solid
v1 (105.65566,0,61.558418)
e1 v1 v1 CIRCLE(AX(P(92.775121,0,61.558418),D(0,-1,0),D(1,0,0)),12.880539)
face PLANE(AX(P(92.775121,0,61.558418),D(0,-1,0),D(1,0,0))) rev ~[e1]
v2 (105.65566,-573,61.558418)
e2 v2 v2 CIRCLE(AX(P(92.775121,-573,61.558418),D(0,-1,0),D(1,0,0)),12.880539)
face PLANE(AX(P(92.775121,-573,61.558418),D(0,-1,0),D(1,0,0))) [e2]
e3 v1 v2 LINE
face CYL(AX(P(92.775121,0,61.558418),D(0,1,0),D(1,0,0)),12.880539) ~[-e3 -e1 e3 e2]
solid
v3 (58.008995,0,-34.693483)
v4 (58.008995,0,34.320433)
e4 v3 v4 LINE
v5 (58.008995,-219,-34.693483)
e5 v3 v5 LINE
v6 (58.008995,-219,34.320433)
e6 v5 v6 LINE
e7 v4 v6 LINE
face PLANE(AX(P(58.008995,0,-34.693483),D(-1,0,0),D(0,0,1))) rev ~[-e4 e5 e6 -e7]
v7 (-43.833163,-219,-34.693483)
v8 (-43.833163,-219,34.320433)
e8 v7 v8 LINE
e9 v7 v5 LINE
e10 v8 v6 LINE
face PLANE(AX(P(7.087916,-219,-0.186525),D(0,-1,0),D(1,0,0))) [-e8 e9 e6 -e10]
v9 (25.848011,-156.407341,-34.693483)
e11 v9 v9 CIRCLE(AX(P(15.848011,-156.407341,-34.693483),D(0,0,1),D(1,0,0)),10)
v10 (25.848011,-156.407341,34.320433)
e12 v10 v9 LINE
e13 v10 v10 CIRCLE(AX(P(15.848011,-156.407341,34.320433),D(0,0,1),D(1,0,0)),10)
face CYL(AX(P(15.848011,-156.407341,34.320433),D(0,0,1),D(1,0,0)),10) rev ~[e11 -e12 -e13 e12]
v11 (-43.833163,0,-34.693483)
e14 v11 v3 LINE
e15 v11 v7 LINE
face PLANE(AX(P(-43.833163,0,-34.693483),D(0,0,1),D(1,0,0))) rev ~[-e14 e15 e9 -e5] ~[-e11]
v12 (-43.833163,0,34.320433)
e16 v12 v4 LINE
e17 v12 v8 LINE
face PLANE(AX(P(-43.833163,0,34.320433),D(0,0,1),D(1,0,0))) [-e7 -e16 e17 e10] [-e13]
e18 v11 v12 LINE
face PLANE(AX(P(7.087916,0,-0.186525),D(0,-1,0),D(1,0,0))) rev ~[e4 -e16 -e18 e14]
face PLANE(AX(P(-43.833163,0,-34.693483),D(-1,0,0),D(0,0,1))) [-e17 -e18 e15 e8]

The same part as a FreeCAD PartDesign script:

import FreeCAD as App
import Part
import Sketcher
from FreeCAD import Vector

doc = App.newDocument("Part")
params = doc.addObject("Spreadsheet::Sheet", "Params")
for row, (alias, value) in enumerate([
    ("pad1_length", "219 mm"),
    ("sketch2_diameter", "20 mm"),
    ("pad2_length", "573 mm"),
], start=1):
    params.set(f"A{row}", alias)
    params.set(f"B{row}", "=" + value)
    params.setAlias(f"B{row}", alias)

body = doc.addObject("PartDesign::Body", "Body")

sketch1 = doc.addObject("Sketcher::SketchObject", "Sketch")
body.addObject(sketch1)
sketch1.AttachmentSupport = (doc.XZ_Plane, [""])
sketch1.MapMode = "FlatFace"
sketch1.addGeometry(Part.LineSegment(Vector(-43.833163, 34.320433, 0), Vector(-43.833163, -34.693483, 0)), False)
sketch1.addGeometry(Part.LineSegment(Vector(-43.833163, -34.693483, 0), Vector(58.008995, -34.693483, 0)), False)
sketch1.addGeometry(Part.LineSegment(Vector(58.008995, -34.693483, 0), Vector(58.008995, 34.320433, 0)), False)
sketch1.addGeometry(Part.LineSegment(Vector(58.008995, 34.320433, 0), Vector(-43.833163, 34.320433, 0)), False)
sketch1.addConstraint(Sketcher.Constraint("Coincident", 0, 2, 1, 1))
sketch1.addConstraint(Sketcher.Constraint("Coincident", 1, 2, 2, 1))
sketch1.addConstraint(Sketcher.Constraint("Coincident", 2, 2, 3, 1))
sketch1.addConstraint(Sketcher.Constraint("Coincident", 3, 2, 0, 1))
sketch1.addConstraint(Sketcher.Constraint("Vertical", 0))
sketch1.addConstraint(Sketcher.Constraint("Horizontal", 1))
sketch1.addConstraint(Sketcher.Constraint("Vertical", 2))
sketch1.addConstraint(Sketcher.Constraint("Horizontal", 3))
sketch1.addConstraint(Sketcher.Constraint("DistanceX", 1, 1, 1, 2, 101.842158))
sketch1.addConstraint(Sketcher.Constraint("DistanceY", 0, 2, 0, 1, 69.013916))
sketch1.addConstraint(Sketcher.Constraint("DistanceX", 0, 2, -1, 1, 43.833163))
sketch1.addConstraint(Sketcher.Constraint("DistanceY", 0, 2, -1, 1, 34.693483))
pad1 = doc.addObject("PartDesign::Pad", "Pad")
body.addObject(pad1)
pad1.Profile = sketch1
pad1.setExpression("Length", "Params.pad1_length")

sketch2 = doc.addObject("Sketcher::SketchObject", "Sketch001")
body.addObject(sketch2)
sketch2.AttachmentSupport = (doc.XY_Plane, [""])
sketch2.MapMode = "FlatFace"
sketch2.AttachmentOffset = App.Placement(Vector(0, 0, 34.320433), App.Rotation())
sketch2.addGeometry(Part.Circle(Vector(15.848011, -156.407341, 0), Vector(0, 0, 1), 10), False)
sketch2.addConstraint(Sketcher.Constraint("Diameter", 0, 20.0))
sketch2.addConstraint(Sketcher.Constraint("DistanceX", -1, 1, 0, 3, 15.848011))
sketch2.addConstraint(Sketcher.Constraint("DistanceY", 0, 3, -1, 1, 156.407341))
sketch2.setExpression("Constraints[0]", "Params.sketch2_diameter")
pocket1 = doc.addObject("PartDesign::Pocket", "Pocket")
body.addObject(pocket1)
pocket1.Profile = sketch2
pocket1.Type = "ThroughAll"
body2 = doc.addObject("PartDesign::Body", "Body001")

sketch3 = doc.addObject("Sketcher::SketchObject", "Sketch002")
body2.addObject(sketch3)
sketch3.AttachmentSupport = (doc.getObject("XZ_Plane001"), [""])
sketch3.MapMode = "FlatFace"
sketch3.addGeometry(Part.Circle(Vector(92.775121, 61.558418, 0), Vector(0, 0, 1), 12.880539), False)
sketch3.addConstraint(Sketcher.Constraint("Diameter", 0, 25.761078))
sketch3.addConstraint(Sketcher.Constraint("DistanceX", -1, 1, 0, 3, 92.775121))
sketch3.addConstraint(Sketcher.Constraint("DistanceY", -1, 1, 0, 3, 61.558418))
pad2 = doc.addObject("PartDesign::Pad", "Pad001")
body2.addObject(pad2)
pad2.Profile = sketch3
pad2.setExpression("Length", "Params.pad2_length")

doc.recompute()
